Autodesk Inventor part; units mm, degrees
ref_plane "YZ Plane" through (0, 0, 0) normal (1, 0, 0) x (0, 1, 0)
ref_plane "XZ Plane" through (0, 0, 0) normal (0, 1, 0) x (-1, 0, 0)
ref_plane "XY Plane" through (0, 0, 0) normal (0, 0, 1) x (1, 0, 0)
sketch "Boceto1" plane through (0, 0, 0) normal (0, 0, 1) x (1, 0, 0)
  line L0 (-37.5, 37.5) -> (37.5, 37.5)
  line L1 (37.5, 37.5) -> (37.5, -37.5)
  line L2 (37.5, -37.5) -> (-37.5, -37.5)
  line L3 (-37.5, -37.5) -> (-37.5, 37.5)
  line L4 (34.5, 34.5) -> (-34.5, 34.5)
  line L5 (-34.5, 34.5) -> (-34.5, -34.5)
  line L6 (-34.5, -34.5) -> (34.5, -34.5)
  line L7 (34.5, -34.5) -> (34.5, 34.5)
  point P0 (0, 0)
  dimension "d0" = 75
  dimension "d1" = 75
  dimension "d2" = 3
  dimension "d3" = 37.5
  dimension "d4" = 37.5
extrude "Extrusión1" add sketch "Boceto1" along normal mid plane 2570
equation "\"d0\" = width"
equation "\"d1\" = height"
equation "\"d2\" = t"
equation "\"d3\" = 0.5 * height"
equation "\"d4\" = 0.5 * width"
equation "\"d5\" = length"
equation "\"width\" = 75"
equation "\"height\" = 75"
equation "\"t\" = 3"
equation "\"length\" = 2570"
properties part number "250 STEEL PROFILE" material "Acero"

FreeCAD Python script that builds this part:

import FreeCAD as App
import Part
import Sketcher

V = App.Vector
Q = App.Units.Quantity


def add_polygon(sketch, points):
    """Adds a closed chain of lines whose ends are joined by coincident constraints."""
    first, n = sketch.GeometryCount, len(points)
    for a, b in zip(points, points[1:] + points[:1]):
        sketch.addGeometry(Part.LineSegment(App.Vector(*a, 0), App.Vector(*b, 0)), False)
    for i in range(n):
        sketch.addConstraint(Sketcher.Constraint("Coincident", first + i, 2, first + (i + 1) % n, 1))

doc = App.newDocument("Part")
body = doc.addObject("PartDesign::Body", "Body")

sketch1 = body.newObject("Sketcher::SketchObject", "Sketch")
sketch1.AttachmentSupport = (doc.getObject("XY_Plane"), [""])
sketch1.MapMode = "FlatFace"
add_polygon(sketch1, [(38, 38), (-38, 38), (-38, -38), (38, -38)])
add_polygon(sketch1, [(-34, 34), (34, 34), (34, -34), (-34, -34)])
sketch1.addConstraint([
    Sketcher.Constraint("Horizontal", 0),
    Sketcher.Constraint("Vertical", 1),
    Sketcher.Constraint("Horizontal", 2),
    Sketcher.Constraint("Vertical", 3),
    Sketcher.Constraint("Horizontal", 4),
    Sketcher.Constraint("Vertical", 5),
    Sketcher.Constraint("Horizontal", 6),
    Sketcher.Constraint("Vertical", 7),
    Sketcher.Constraint("Symmetric", 0, 2, 2, 2, -1, 1),
    Sketcher.Constraint("Symmetric", 4, 2, 6, 2, -1, 1),
    Sketcher.Constraint("Equal", 2, 1),
    Sketcher.Constraint("Equal", 6, 5),
    Sketcher.Constraint("DistanceX", 0, 2, 0, 1, Q("75 mm")),
    Sketcher.Constraint("DistanceX", 4, 2, 3, 2, Q("3 mm")),
])
pad1 = body.newObject("PartDesign::Pad", "Pad")
pad1.Profile = sketch1
pad1.Length = 2570
pad1.Midplane = True

doc.recompute()
